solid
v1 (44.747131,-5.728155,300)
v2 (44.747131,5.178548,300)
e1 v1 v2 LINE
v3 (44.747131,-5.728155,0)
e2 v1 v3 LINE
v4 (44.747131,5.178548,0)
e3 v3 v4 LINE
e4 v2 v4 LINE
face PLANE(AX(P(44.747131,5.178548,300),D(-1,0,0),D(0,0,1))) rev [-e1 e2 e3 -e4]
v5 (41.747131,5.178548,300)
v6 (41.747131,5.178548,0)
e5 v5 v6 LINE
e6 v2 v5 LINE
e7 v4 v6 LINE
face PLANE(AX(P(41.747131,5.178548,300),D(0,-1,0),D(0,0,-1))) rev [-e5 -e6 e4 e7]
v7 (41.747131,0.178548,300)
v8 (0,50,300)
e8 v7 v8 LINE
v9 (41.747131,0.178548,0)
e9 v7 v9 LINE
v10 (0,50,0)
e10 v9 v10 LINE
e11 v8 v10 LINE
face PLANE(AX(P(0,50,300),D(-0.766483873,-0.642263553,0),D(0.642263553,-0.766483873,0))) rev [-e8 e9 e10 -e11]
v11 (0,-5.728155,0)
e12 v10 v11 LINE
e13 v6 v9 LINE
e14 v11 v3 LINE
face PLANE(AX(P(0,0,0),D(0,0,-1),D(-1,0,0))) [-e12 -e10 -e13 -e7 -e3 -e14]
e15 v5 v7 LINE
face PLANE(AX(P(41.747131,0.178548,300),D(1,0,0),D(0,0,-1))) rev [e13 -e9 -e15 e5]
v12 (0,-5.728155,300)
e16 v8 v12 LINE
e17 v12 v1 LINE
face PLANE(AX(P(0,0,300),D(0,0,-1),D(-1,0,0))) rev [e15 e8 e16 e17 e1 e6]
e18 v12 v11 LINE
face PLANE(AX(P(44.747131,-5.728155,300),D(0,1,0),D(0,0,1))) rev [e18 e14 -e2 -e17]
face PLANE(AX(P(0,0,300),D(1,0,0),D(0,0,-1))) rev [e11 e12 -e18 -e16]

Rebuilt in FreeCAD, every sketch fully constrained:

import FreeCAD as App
import Part
import Sketcher

doc = App.newDocument("Part")
params = doc.addObject("Spreadsheet::Sheet", "Params")
for row, (alias, value) in enumerate([
    ("sketch1_width", "3 mm"),
    ("sketch1_height", "5 mm"),
    ("sketch1_length", "65 mm"),
    ("pad1_length", "300 mm"),
], start=1):
    params.set(f"A{row}", alias)
    params.set(f"B{row}", "=" + value)
    params.setAlias(f"B{row}", alias)

body = doc.addObject("PartDesign::Body", "Body")

sketch1 = body.newObject("Sketcher::SketchObject", "Sketch")
sketch1.AttachmentSupport = (doc.getObject("XY_Plane"), [""])
sketch1.MapMode = "FlatFace"
sketch1.addGeometry(Part.LineSegment(App.Vector(0, 50, 0), App.Vector(0, -5.7, 0)), False)
sketch1.addGeometry(Part.LineSegment(App.Vector(0, -5.7, 0), App.Vector(44.7, -5.7, 0)), False)
sketch1.addGeometry(Part.LineSegment(App.Vector(44.7, -5.7, 0), App.Vector(44.7, 5.2, 0)), False)
sketch1.addGeometry(Part.LineSegment(App.Vector(44.7, 5.2, 0), App.Vector(41.7, 5.2, 0)), False)
sketch1.addGeometry(Part.LineSegment(App.Vector(41.7, 5.2, 0), App.Vector(41.7, 0.2, 0)), False)
sketch1.addGeometry(Part.LineSegment(App.Vector(41.7, 0.2, 0), App.Vector(0, 50, 0)), False)
sketch1.addConstraint(Sketcher.Constraint("Coincident", 0, 2, 1, 1))
sketch1.addConstraint(Sketcher.Constraint("Coincident", 1, 2, 2, 1))
sketch1.addConstraint(Sketcher.Constraint("Coincident", 2, 2, 3, 1))
sketch1.addConstraint(Sketcher.Constraint("Coincident", 3, 2, 4, 1))
sketch1.addConstraint(Sketcher.Constraint("Coincident", 4, 2, 5, 1))
sketch1.addConstraint(Sketcher.Constraint("Coincident", 5, 2, 0, 1))
sketch1.addConstraint(Sketcher.Constraint("Vertical", 0))
sketch1.addConstraint(Sketcher.Constraint("Horizontal", 1))
sketch1.addConstraint(Sketcher.Constraint("Vertical", 2))
sketch1.addConstraint(Sketcher.Constraint("Horizontal", 3))
sketch1.addConstraint(Sketcher.Constraint("Vertical", 4))
sketch1.addConstraint(Sketcher.Constraint("PointOnObject", 0, 2, -2))
sketch1.addConstraint(Sketcher.Constraint("DistanceX", 3, 2, 3, 1, 3.0))
sketch1.addConstraint(Sketcher.Constraint("DistanceY", 4, 2, 4, 1, 5.0))
sketch1.addConstraint(Sketcher.Constraint("Distance", 5, 65.0))
sketch1.addConstraint(Sketcher.Constraint("DistanceY", -1, 1, 5, 2, 50.0))
sketch1.addConstraint(Sketcher.Constraint("DistanceX", 1, 1, 1, 2, 44.747131))
sketch1.addConstraint(Sketcher.Constraint("DistanceY", 0, 2, 0, 1, 55.728155))
sketch1.setExpression("Constraints[12]", "Params.sketch1_width")
sketch1.setExpression("Constraints[13]", "Params.sketch1_height")
sketch1.setExpression("Constraints[14]", "Params.sketch1_length")
pad1 = body.newObject("PartDesign::Pad", "Pad")
pad1.Profile = sketch1
pad1.setExpression("Length", "Params.pad1_length")

doc.recompute()
